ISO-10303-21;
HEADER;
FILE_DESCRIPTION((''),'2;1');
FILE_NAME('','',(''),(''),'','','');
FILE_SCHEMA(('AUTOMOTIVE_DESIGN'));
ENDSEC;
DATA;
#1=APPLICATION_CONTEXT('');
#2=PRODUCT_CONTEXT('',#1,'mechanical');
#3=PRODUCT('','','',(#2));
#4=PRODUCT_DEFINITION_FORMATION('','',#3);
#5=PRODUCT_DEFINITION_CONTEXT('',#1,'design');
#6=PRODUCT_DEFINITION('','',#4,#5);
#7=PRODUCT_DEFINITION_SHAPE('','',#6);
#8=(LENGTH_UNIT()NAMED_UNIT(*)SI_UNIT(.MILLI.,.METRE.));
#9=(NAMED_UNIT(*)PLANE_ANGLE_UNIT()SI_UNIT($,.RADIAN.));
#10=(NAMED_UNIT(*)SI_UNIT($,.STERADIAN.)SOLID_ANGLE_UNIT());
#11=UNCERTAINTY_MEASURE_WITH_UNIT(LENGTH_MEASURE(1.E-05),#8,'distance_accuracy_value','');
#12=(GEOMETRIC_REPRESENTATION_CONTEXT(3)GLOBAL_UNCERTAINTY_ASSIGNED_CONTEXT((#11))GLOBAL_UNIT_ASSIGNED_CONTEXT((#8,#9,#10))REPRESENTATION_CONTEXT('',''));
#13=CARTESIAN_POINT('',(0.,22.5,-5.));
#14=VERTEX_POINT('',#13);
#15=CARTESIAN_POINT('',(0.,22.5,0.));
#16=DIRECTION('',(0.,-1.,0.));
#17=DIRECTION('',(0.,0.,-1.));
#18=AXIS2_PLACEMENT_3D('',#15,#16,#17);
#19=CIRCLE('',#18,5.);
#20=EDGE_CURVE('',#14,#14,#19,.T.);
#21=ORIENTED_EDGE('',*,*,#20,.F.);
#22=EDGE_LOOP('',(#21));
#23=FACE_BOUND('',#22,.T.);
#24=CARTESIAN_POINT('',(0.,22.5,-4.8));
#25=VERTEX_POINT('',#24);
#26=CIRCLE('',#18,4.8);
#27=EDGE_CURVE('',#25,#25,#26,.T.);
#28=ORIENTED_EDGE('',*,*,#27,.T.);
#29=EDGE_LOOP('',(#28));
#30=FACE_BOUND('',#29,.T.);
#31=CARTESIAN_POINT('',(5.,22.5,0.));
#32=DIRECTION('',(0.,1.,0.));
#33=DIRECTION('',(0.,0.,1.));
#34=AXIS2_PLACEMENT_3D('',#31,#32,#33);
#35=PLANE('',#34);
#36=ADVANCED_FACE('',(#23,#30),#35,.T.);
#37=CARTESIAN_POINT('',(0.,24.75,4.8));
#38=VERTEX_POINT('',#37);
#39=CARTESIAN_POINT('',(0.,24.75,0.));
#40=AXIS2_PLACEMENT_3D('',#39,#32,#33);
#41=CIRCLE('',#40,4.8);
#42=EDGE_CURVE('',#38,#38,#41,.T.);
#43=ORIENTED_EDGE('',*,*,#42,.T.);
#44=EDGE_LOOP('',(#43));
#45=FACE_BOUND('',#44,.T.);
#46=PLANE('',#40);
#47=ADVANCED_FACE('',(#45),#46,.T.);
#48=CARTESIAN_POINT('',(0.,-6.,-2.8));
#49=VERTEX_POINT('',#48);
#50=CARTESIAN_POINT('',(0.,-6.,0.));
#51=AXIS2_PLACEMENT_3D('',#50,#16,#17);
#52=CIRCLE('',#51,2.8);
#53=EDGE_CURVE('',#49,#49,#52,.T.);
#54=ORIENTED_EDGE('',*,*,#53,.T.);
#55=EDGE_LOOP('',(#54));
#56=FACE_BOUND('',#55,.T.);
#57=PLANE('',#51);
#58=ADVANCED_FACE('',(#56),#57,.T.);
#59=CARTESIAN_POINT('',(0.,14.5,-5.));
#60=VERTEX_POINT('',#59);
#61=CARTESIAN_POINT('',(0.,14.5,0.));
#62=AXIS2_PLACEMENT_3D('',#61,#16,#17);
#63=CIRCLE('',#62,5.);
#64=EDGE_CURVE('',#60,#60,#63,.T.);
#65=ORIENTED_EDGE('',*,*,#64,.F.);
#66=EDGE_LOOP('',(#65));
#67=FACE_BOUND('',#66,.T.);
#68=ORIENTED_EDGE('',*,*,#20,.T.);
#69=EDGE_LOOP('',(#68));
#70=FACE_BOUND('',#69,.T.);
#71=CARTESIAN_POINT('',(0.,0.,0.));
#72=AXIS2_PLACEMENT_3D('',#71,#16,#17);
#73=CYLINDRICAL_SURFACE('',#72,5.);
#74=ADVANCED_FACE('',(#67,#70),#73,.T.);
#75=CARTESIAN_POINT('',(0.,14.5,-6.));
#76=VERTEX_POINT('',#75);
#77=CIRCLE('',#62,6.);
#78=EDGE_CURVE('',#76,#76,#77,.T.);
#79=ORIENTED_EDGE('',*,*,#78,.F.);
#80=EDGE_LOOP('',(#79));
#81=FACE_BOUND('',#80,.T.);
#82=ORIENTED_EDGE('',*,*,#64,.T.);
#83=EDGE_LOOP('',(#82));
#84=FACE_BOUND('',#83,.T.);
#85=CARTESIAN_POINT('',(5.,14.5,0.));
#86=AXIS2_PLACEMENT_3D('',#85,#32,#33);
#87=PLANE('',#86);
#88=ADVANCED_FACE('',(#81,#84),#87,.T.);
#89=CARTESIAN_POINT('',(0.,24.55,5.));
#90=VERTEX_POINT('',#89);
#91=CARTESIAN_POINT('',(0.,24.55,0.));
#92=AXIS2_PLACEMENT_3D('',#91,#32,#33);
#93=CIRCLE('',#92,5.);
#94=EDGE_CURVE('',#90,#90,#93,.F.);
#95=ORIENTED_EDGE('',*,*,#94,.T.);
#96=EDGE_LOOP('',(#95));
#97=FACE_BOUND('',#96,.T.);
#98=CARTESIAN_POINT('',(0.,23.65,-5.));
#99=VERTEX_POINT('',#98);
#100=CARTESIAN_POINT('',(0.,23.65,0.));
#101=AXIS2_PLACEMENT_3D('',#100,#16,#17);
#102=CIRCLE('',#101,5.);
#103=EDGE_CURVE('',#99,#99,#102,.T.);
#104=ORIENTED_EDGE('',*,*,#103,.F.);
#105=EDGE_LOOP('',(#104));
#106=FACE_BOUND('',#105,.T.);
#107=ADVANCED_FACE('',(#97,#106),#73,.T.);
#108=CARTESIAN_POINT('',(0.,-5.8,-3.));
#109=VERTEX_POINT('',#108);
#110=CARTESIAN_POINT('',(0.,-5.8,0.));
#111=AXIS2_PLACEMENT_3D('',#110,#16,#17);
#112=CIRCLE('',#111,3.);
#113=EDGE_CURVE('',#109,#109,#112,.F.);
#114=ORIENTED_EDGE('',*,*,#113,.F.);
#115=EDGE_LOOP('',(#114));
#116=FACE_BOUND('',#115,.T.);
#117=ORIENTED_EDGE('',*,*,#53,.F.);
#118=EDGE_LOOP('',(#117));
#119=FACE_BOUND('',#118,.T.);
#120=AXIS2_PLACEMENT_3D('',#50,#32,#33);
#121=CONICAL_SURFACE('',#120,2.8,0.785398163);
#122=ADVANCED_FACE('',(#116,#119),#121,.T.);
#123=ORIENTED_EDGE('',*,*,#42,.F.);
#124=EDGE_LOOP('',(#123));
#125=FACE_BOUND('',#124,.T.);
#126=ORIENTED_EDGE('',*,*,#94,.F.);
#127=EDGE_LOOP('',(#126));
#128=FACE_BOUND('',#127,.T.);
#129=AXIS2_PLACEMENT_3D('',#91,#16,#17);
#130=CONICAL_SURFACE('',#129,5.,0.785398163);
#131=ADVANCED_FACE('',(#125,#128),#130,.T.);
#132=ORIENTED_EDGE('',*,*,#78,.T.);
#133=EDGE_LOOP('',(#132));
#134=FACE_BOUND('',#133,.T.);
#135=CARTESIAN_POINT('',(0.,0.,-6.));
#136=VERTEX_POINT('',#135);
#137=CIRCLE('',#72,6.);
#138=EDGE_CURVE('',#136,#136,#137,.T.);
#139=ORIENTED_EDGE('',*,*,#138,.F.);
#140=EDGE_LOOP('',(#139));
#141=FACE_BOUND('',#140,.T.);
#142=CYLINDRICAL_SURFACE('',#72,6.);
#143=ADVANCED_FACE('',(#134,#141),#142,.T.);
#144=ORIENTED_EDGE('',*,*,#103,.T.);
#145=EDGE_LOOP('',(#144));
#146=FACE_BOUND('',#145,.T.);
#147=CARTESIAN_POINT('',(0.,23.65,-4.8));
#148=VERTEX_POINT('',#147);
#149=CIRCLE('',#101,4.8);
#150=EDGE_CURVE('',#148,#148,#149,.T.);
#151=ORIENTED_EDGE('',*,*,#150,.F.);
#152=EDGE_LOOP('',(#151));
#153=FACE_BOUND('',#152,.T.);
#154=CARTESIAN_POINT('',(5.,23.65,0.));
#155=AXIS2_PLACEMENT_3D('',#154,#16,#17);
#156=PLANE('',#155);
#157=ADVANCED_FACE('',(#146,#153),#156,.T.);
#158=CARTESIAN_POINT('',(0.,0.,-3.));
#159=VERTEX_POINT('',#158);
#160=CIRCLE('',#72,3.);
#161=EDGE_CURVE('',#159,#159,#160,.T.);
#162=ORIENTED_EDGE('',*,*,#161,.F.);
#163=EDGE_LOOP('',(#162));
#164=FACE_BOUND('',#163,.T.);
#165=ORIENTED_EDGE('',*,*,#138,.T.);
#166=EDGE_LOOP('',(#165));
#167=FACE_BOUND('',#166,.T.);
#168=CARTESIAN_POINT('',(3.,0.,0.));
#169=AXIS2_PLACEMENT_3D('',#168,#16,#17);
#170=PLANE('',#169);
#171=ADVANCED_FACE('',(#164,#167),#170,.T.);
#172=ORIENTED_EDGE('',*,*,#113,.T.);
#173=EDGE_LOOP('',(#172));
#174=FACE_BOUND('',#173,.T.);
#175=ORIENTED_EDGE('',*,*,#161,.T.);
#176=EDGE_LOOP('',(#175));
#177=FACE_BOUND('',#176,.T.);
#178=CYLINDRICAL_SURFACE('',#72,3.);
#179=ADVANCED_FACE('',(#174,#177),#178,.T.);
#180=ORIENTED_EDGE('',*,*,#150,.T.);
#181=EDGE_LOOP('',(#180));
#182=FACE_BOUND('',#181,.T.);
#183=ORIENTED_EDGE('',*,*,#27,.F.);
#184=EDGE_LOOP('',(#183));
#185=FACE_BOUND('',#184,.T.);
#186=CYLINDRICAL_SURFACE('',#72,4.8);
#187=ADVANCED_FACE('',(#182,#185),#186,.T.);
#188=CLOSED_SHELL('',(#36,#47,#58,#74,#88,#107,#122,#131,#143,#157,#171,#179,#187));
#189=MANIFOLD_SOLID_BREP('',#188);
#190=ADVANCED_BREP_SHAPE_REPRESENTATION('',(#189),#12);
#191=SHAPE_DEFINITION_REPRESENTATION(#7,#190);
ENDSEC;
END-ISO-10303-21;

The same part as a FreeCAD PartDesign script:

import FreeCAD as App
import Part
import Sketcher
from FreeCAD import Vector
Q = App.Units.Quantity


def edges_at(feature, points):
    """Names of the edges that pass closest to the given points."""
    edges = feature.Shape.Edges
    near = lambda p: min(range(len(edges)), key=lambda i: edges[i].distToShape(Part.Vertex(*p))[0])
    return sorted({f"Edge{near(p) + 1}" for p in points})

doc = App.newDocument("Part")
body = doc.addObject("PartDesign::Body", "Body")

# Sketch on XY plane
sketch1 = doc.addObject("Sketcher::SketchObject", "Sketch")
body.addObject(sketch1)
sketch1.AttachmentSupport = (doc.XY_Plane, [""])
sketch1.MapMode = "FlatFace"
sketch1.addGeometry([
    Part.LineSegment(Vector(3, -6, 0), Vector(3, 0, 0)),  # 0
    Part.LineSegment(Vector(3, 0, 0), Vector(6, 0, 0)),  # 1
    Part.LineSegment(Vector(6, 0, 0), Vector(6, 14.5, 0)),  # 2
    Part.LineSegment(Vector(6, 14.5, 0), Vector(5, 14.5, 0)),  # 3
    Part.LineSegment(Vector(5, 14.5, 0), Vector(5, 22.5, 0)),  # 4
    Part.LineSegment(Vector(5, 22.5, 0), Vector(4.8, 22.5, 0)),  # 5
    Part.LineSegment(Vector(4.8, 22.5, 0), Vector(4.8, 23.65, 0)),  # 6
    Part.LineSegment(Vector(4.8, 23.65, 0), Vector(5, 23.65, 0)),  # 7
    Part.LineSegment(Vector(5, 23.65, 0), Vector(5, 24.75, 0)),  # 8
    Part.LineSegment(Vector(5, 24.75, 0), Vector(0, 24.75, 0)),  # 9
    Part.LineSegment(Vector(0, 24.75, 0), Vector(0, -6, 0)),  # 10
    Part.LineSegment(Vector(0, -6, 0), Vector(3, -6, 0)),  # 11
], False)
sketch1.addConstraint([
    Sketcher.Constraint("Coincident", 0, 2, 1, 1),
    Sketcher.Constraint("Coincident", 1, 2, 2, 1),
    Sketcher.Constraint("Coincident", 2, 2, 3, 1),
    Sketcher.Constraint("Coincident", 3, 2, 4, 1),
    Sketcher.Constraint("Coincident", 4, 2, 5, 1),
    Sketcher.Constraint("Coincident", 5, 2, 6, 1),
    Sketcher.Constraint("Coincident", 6, 2, 7, 1),
    Sketcher.Constraint("Coincident", 7, 2, 8, 1),
    Sketcher.Constraint("Coincident", 8, 2, 9, 1),
    Sketcher.Constraint("Coincident", 9, 2, 10, 1),
    Sketcher.Constraint("Coincident", 10, 2, 11, 1),
    Sketcher.Constraint("Coincident", 11, 2, 0, 1),
    Sketcher.Constraint("Vertical", 0),
    Sketcher.Constraint("Horizontal", 1),
    Sketcher.Constraint("Vertical", 2),
    Sketcher.Constraint("Horizontal", 3),
    Sketcher.Constraint("Vertical", 4),
    Sketcher.Constraint("Horizontal", 5),
    Sketcher.Constraint("Vertical", 6),
    Sketcher.Constraint("Horizontal", 7),
    Sketcher.Constraint("Vertical", 8),
    Sketcher.Constraint("Horizontal", 9),
    Sketcher.Constraint("Vertical", 10),
    Sketcher.Constraint("Horizontal", 11),
    Sketcher.Constraint("PointOnObject", 0, 2, -1),
    Sketcher.Constraint("PointOnObject", 9, 2, -2),
    Sketcher.Constraint("Vertical", 4, 2, 7, 2),
    Sketcher.Constraint("Equal", 1, 11),
    Sketcher.Constraint("DistanceX", 1, 1, 1, 2, Q("3 mm")),
    Sketcher.Constraint("DistanceX", 3, 2, 3, 1, Q("1 mm")),
    Sketcher.Constraint("DistanceY", 0, 1, 0, 2, Q("6 mm")),
    Sketcher.Constraint("DistanceY", 4, 1, 4, 2, Q("8 mm")),
    Sketcher.Constraint("DistanceX", 5, 2, 5, 1, Q("0.2 mm")),
    Sketcher.Constraint("DistanceY", 2, 1, 2, 2, Q("14.5 mm")),
    Sketcher.Constraint("DistanceY", 8, 1, 8, 2, Q("1.1 mm")),
    Sketcher.Constraint("DistanceY", 6, 1, 6, 2, Q("1.15 mm")),
])
revolution = doc.addObject("PartDesign::Revolution", "Revolution")
body.addObject(revolution)
revolution.Profile = sketch1
revolution.ReferenceAxis = (sketch1, ["V_Axis"])
revolution.Angle = 360
doc.recompute()

chamfer = doc.addObject("PartDesign::Chamfer", "Chamfer")
body.addObject(chamfer)
chamfer.Base = (revolution, edges_at(revolution, [(-5, 24.75, 0), (-3, -6, 0)]))
chamfer.Size = 0.2

doc.recompute()
